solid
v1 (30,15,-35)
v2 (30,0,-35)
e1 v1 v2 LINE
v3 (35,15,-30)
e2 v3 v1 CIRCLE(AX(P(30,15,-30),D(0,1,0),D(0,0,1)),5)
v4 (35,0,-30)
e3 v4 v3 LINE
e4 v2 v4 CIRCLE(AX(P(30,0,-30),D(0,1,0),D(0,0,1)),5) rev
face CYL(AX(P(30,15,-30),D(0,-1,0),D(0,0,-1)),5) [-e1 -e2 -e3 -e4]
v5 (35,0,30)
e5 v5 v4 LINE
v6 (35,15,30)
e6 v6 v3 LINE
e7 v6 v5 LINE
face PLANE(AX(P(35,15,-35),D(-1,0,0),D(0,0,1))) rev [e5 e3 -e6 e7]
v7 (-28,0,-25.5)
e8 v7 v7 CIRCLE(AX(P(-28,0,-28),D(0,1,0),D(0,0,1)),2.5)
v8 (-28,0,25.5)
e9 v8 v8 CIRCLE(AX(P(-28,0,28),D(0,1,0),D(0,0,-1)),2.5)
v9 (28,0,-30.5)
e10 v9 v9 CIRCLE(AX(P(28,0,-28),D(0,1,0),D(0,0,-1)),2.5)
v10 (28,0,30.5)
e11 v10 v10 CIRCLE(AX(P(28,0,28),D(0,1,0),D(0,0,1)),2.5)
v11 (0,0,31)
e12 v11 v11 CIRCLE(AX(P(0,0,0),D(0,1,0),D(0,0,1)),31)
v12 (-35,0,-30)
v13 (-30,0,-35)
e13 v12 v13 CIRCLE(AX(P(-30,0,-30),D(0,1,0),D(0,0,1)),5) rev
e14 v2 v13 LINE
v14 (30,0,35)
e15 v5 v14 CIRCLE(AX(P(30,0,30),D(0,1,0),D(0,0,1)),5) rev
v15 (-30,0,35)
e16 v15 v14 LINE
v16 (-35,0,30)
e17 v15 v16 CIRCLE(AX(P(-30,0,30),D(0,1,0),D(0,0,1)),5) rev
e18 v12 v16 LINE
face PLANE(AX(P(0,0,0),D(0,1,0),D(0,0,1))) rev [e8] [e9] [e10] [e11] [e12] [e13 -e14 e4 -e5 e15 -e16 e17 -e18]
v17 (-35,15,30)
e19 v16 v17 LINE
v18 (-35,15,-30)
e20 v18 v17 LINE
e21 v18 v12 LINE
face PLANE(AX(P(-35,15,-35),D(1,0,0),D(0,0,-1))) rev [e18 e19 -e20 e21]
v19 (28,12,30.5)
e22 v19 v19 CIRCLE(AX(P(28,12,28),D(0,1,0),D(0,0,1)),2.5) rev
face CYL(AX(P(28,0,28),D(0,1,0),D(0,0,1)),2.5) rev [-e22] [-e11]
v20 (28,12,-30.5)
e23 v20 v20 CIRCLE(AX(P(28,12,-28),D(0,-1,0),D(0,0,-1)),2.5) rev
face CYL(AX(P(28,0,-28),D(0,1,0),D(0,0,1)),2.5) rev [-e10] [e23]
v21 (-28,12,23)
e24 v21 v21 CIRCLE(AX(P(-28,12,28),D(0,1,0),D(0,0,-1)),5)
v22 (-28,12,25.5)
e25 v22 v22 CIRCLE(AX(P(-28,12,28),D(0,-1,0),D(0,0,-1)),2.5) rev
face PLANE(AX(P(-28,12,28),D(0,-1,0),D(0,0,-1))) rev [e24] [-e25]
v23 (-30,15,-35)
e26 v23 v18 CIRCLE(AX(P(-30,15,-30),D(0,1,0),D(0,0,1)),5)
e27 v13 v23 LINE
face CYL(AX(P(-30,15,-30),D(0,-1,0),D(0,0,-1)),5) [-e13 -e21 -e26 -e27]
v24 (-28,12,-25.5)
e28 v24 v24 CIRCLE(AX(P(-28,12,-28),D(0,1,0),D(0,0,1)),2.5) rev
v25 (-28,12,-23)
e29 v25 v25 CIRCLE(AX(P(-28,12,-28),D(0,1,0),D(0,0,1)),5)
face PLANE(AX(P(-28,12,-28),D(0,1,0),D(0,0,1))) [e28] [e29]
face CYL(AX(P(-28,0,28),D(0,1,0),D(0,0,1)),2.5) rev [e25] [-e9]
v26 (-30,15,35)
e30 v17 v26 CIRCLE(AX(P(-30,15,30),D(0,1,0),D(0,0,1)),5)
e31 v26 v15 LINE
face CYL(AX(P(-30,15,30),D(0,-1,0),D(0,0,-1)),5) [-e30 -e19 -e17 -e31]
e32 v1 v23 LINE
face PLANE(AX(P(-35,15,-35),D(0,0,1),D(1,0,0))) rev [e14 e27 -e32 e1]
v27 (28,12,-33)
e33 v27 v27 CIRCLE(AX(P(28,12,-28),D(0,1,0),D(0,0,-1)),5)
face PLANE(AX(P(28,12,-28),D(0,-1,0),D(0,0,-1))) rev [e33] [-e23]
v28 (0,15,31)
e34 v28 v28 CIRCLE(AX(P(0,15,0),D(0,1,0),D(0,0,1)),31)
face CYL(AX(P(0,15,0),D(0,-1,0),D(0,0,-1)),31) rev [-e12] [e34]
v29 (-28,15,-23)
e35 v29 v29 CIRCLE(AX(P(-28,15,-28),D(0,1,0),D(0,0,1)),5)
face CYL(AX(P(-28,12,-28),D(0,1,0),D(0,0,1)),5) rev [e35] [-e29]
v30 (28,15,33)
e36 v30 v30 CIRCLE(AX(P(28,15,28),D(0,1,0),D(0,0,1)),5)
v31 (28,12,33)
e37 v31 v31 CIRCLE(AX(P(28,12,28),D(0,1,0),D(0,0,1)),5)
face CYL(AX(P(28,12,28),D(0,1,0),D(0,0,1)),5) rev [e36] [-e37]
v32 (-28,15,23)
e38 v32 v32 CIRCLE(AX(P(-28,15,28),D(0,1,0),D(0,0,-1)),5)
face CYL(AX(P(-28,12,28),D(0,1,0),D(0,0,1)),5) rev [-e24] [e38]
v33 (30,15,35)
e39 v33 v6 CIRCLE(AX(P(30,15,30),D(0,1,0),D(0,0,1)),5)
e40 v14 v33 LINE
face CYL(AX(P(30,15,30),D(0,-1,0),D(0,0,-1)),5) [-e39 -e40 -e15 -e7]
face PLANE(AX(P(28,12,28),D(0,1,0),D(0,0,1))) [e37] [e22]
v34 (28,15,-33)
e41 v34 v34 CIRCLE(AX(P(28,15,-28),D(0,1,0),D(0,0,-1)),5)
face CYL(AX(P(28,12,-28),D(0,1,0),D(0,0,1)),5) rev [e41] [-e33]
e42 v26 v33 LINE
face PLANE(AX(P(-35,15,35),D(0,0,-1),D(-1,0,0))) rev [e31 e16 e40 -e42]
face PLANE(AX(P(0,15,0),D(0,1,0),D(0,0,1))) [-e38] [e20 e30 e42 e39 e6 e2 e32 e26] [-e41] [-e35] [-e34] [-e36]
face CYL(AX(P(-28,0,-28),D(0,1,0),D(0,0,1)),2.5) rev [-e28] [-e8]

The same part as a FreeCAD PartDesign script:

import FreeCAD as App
import Part
import Sketcher
Q = App.Units.Quantity


def edges_at(feature, points):
    """Names of the edges that pass closest to the given points."""
    edges = feature.Shape.Edges
    near = lambda p: min(range(len(edges)), key=lambda i: edges[i].distToShape(Part.Vertex(*p))[0])
    return sorted({f"Edge{near(p) + 1}" for p in points})

doc = App.newDocument("Part")
params = doc.addObject("Spreadsheet::Sheet", "Params")
for row, (alias, value) in enumerate([
    ("sketch1_diameter", "62 mm"),
    ("sketch1_width", "70 mm"),
    ("pad1_length", "15 mm"),
    ("sketch2_diameter", "5 mm"),
    ("fillet_radius", "5 mm"),
    ("sketch3_diameter", "10 mm"),
    ("pocket2_length", "3 mm"),
], start=1):
    params.set(f"A{row}", alias)
    params.set(f"B{row}", "=" + value)
    params.setAlias(f"B{row}", alias)

body = doc.addObject("PartDesign::Body", "Body")

# Sketch on XZ plane
sketch1 = doc.addObject("Sketcher::SketchObject", "Sketch")
body.addObject(sketch1)
sketch1.AttachmentSupport = (doc.XZ_Plane, [""])
sketch1.MapMode = "FlatFace"
sketch1.addGeometry(Part.LineSegment(App.Vector(-35, -35, 0), App.Vector(-35, 35, 0)), False)
sketch1.addGeometry(Part.LineSegment(App.Vector(-35, 35, 0), App.Vector(35, 35, 0)), False)
sketch1.addGeometry(Part.LineSegment(App.Vector(35, 35, 0), App.Vector(35, -35, 0)), False)
sketch1.addGeometry(Part.LineSegment(App.Vector(35, -35, 0), App.Vector(-35, -35, 0)), False)
sketch1.addGeometry(Part.Circle(App.Vector(0, 0, 0), App.Vector(0, 0, 1), 31), False)
sketch1.addConstraint(Sketcher.Constraint("Coincident", 0, 2, 1, 1))
sketch1.addConstraint(Sketcher.Constraint("Coincident", 1, 2, 2, 1))
sketch1.addConstraint(Sketcher.Constraint("Coincident", 2, 2, 3, 1))
sketch1.addConstraint(Sketcher.Constraint("Coincident", 3, 2, 0, 1))
sketch1.addConstraint(Sketcher.Constraint("Vertical", 0))
sketch1.addConstraint(Sketcher.Constraint("Horizontal", 1))
sketch1.addConstraint(Sketcher.Constraint("Vertical", 2))
sketch1.addConstraint(Sketcher.Constraint("Horizontal", 3))
sketch1.addConstraint(Sketcher.Constraint("Coincident", 4, 3, -1, 1))
sketch1.addConstraint(Sketcher.Constraint("Symmetric", 0, 2, 2, 2, -1, 1))
sketch1.addConstraint(Sketcher.Constraint("Equal", 3, 0))
sketch1.addConstraint(Sketcher.Constraint("Diameter", 4, Q("62 mm")))
sketch1.addConstraint(Sketcher.Constraint("DistanceX", 1, 1, 1, 2, Q("70 mm")))
sketch1.setExpression("Constraints[11]", "Params.sketch1_diameter")
sketch1.setExpression("Constraints[12]", "Params.sketch1_width")
pad1 = doc.addObject("PartDesign::Pad", "Pad")
body.addObject(pad1)
pad1.Profile = sketch1
pad1.setExpression("Length", "Params.pad1_length")
pad1.Reversed = True

# Sketch on XZ plane
sketch2 = doc.addObject("Sketcher::SketchObject", "Sketch001")
body.addObject(sketch2)
sketch2.AttachmentSupport = (doc.XZ_Plane, [""])
sketch2.MapMode = "FlatFace"
sketch2.AttachmentOffset = App.Placement(App.Vector(0, 0, -15), App.Rotation())
sketch2.addGeometry(Part.Circle(App.Vector(-28, -28, 0), App.Vector(0, 0, 1), 2.5), False)
sketch2.addGeometry(Part.Circle(App.Vector(28, -28, 0), App.Vector(0, 0, 1), 2.5), False)
sketch2.addGeometry(Part.Circle(App.Vector(28, 28, 0), App.Vector(0, 0, 1), 2.5), False)
sketch2.addGeometry(Part.Circle(App.Vector(-28, 28, 0), App.Vector(0, 0, 1), 2.5), False)
sketch2.addConstraint(Sketcher.Constraint("Equal", 0, 1))
sketch2.addConstraint(Sketcher.Constraint("Equal", 1, 2))
sketch2.addConstraint(Sketcher.Constraint("Equal", 2, 3))
sketch2.addConstraint(Sketcher.Constraint("Symmetric", 0, 3, 2, 3, -1, 1))
sketch2.addConstraint(Sketcher.Constraint("Symmetric", 1, 3, 3, 3, -1, 1))
sketch2.addConstraint(Sketcher.Constraint("Symmetric", 0, 3, 1, 3, -2))
sketch2.addConstraint(Sketcher.Constraint("Diameter", 0, Q("5 mm")))
sketch2.addConstraint(Sketcher.Constraint("DistanceX", 0, 3, -1, 1, Q("28 mm")))
sketch2.addConstraint(Sketcher.Constraint("DistanceY", 0, 3, -1, 1, Q("28 mm")))
sketch2.setExpression("Constraints[6]", "Params.sketch2_diameter")
pocket1 = doc.addObject("PartDesign::Pocket", "Pocket")
body.addObject(pocket1)
pocket1.Profile = sketch2
pocket1.Type = "ThroughAll"
pocket1.Reversed = True
doc.recompute()

fillet = doc.addObject("PartDesign::Fillet", "Fillet")
body.addObject(fillet)
fillet.Base = (pocket1, edges_at(pocket1, [
    (35, 7.5, 35),
    (-35, 7.5, 35),
    (-35, 7.5, -35),
    (35, 7.5, -35),
]))
fillet.setExpression("Radius", "Params.fillet_radius")

# Sketch on XZ plane
sketch3 = doc.addObject("Sketcher::SketchObject", "Sketch002")
body.addObject(sketch3)
sketch3.AttachmentSupport = (doc.XZ_Plane, [""])
sketch3.MapMode = "FlatFace"
sketch3.AttachmentOffset = App.Placement(App.Vector(0, 0, -15), App.Rotation())
sketch3.addGeometry(Part.Circle(App.Vector(-28, -28, 0), App.Vector(0, 0, 1), 5), False)
sketch3.addGeometry(Part.Circle(App.Vector(-28, 28, 0), App.Vector(0, 0, 1), 5), False)
sketch3.addGeometry(Part.Circle(App.Vector(28, -28, 0), App.Vector(0, 0, 1), 5), False)
sketch3.addGeometry(Part.Circle(App.Vector(28, 28, 0), App.Vector(0, 0, 1), 5), False)
sketch3.addConstraint(Sketcher.Constraint("Equal", 0, 1))
sketch3.addConstraint(Sketcher.Constraint("Equal", 1, 2))
sketch3.addConstraint(Sketcher.Constraint("Equal", 2, 3))
sketch3.addConstraint(Sketcher.Constraint("Symmetric", 1, 3, 2, 3, -1, 1))
sketch3.addConstraint(Sketcher.Constraint("Symmetric", 0, 3, 3, 3, -1, 1))
sketch3.addConstraint(Sketcher.Constraint("Symmetric", 0, 3, 2, 3, -2))
sketch3.addConstraint(Sketcher.Constraint("Diameter", 0, Q("10 mm")))
sketch3.addConstraint(Sketcher.Constraint("DistanceX", 0, 3, -1, 1, Q("28 mm")))
sketch3.addConstraint(Sketcher.Constraint("DistanceY", 0, 3, -1, 1, Q("28 mm")))
sketch3.setExpression("Constraints[6]", "Params.sketch3_diameter")
pocket2 = doc.addObject("PartDesign::Pocket", "Pocket001")
body.addObject(pocket2)
pocket2.Profile = sketch3
pocket2.setExpression("Length", "Params.pocket2_length")
pocket2.Reversed = True

doc.recompute()
